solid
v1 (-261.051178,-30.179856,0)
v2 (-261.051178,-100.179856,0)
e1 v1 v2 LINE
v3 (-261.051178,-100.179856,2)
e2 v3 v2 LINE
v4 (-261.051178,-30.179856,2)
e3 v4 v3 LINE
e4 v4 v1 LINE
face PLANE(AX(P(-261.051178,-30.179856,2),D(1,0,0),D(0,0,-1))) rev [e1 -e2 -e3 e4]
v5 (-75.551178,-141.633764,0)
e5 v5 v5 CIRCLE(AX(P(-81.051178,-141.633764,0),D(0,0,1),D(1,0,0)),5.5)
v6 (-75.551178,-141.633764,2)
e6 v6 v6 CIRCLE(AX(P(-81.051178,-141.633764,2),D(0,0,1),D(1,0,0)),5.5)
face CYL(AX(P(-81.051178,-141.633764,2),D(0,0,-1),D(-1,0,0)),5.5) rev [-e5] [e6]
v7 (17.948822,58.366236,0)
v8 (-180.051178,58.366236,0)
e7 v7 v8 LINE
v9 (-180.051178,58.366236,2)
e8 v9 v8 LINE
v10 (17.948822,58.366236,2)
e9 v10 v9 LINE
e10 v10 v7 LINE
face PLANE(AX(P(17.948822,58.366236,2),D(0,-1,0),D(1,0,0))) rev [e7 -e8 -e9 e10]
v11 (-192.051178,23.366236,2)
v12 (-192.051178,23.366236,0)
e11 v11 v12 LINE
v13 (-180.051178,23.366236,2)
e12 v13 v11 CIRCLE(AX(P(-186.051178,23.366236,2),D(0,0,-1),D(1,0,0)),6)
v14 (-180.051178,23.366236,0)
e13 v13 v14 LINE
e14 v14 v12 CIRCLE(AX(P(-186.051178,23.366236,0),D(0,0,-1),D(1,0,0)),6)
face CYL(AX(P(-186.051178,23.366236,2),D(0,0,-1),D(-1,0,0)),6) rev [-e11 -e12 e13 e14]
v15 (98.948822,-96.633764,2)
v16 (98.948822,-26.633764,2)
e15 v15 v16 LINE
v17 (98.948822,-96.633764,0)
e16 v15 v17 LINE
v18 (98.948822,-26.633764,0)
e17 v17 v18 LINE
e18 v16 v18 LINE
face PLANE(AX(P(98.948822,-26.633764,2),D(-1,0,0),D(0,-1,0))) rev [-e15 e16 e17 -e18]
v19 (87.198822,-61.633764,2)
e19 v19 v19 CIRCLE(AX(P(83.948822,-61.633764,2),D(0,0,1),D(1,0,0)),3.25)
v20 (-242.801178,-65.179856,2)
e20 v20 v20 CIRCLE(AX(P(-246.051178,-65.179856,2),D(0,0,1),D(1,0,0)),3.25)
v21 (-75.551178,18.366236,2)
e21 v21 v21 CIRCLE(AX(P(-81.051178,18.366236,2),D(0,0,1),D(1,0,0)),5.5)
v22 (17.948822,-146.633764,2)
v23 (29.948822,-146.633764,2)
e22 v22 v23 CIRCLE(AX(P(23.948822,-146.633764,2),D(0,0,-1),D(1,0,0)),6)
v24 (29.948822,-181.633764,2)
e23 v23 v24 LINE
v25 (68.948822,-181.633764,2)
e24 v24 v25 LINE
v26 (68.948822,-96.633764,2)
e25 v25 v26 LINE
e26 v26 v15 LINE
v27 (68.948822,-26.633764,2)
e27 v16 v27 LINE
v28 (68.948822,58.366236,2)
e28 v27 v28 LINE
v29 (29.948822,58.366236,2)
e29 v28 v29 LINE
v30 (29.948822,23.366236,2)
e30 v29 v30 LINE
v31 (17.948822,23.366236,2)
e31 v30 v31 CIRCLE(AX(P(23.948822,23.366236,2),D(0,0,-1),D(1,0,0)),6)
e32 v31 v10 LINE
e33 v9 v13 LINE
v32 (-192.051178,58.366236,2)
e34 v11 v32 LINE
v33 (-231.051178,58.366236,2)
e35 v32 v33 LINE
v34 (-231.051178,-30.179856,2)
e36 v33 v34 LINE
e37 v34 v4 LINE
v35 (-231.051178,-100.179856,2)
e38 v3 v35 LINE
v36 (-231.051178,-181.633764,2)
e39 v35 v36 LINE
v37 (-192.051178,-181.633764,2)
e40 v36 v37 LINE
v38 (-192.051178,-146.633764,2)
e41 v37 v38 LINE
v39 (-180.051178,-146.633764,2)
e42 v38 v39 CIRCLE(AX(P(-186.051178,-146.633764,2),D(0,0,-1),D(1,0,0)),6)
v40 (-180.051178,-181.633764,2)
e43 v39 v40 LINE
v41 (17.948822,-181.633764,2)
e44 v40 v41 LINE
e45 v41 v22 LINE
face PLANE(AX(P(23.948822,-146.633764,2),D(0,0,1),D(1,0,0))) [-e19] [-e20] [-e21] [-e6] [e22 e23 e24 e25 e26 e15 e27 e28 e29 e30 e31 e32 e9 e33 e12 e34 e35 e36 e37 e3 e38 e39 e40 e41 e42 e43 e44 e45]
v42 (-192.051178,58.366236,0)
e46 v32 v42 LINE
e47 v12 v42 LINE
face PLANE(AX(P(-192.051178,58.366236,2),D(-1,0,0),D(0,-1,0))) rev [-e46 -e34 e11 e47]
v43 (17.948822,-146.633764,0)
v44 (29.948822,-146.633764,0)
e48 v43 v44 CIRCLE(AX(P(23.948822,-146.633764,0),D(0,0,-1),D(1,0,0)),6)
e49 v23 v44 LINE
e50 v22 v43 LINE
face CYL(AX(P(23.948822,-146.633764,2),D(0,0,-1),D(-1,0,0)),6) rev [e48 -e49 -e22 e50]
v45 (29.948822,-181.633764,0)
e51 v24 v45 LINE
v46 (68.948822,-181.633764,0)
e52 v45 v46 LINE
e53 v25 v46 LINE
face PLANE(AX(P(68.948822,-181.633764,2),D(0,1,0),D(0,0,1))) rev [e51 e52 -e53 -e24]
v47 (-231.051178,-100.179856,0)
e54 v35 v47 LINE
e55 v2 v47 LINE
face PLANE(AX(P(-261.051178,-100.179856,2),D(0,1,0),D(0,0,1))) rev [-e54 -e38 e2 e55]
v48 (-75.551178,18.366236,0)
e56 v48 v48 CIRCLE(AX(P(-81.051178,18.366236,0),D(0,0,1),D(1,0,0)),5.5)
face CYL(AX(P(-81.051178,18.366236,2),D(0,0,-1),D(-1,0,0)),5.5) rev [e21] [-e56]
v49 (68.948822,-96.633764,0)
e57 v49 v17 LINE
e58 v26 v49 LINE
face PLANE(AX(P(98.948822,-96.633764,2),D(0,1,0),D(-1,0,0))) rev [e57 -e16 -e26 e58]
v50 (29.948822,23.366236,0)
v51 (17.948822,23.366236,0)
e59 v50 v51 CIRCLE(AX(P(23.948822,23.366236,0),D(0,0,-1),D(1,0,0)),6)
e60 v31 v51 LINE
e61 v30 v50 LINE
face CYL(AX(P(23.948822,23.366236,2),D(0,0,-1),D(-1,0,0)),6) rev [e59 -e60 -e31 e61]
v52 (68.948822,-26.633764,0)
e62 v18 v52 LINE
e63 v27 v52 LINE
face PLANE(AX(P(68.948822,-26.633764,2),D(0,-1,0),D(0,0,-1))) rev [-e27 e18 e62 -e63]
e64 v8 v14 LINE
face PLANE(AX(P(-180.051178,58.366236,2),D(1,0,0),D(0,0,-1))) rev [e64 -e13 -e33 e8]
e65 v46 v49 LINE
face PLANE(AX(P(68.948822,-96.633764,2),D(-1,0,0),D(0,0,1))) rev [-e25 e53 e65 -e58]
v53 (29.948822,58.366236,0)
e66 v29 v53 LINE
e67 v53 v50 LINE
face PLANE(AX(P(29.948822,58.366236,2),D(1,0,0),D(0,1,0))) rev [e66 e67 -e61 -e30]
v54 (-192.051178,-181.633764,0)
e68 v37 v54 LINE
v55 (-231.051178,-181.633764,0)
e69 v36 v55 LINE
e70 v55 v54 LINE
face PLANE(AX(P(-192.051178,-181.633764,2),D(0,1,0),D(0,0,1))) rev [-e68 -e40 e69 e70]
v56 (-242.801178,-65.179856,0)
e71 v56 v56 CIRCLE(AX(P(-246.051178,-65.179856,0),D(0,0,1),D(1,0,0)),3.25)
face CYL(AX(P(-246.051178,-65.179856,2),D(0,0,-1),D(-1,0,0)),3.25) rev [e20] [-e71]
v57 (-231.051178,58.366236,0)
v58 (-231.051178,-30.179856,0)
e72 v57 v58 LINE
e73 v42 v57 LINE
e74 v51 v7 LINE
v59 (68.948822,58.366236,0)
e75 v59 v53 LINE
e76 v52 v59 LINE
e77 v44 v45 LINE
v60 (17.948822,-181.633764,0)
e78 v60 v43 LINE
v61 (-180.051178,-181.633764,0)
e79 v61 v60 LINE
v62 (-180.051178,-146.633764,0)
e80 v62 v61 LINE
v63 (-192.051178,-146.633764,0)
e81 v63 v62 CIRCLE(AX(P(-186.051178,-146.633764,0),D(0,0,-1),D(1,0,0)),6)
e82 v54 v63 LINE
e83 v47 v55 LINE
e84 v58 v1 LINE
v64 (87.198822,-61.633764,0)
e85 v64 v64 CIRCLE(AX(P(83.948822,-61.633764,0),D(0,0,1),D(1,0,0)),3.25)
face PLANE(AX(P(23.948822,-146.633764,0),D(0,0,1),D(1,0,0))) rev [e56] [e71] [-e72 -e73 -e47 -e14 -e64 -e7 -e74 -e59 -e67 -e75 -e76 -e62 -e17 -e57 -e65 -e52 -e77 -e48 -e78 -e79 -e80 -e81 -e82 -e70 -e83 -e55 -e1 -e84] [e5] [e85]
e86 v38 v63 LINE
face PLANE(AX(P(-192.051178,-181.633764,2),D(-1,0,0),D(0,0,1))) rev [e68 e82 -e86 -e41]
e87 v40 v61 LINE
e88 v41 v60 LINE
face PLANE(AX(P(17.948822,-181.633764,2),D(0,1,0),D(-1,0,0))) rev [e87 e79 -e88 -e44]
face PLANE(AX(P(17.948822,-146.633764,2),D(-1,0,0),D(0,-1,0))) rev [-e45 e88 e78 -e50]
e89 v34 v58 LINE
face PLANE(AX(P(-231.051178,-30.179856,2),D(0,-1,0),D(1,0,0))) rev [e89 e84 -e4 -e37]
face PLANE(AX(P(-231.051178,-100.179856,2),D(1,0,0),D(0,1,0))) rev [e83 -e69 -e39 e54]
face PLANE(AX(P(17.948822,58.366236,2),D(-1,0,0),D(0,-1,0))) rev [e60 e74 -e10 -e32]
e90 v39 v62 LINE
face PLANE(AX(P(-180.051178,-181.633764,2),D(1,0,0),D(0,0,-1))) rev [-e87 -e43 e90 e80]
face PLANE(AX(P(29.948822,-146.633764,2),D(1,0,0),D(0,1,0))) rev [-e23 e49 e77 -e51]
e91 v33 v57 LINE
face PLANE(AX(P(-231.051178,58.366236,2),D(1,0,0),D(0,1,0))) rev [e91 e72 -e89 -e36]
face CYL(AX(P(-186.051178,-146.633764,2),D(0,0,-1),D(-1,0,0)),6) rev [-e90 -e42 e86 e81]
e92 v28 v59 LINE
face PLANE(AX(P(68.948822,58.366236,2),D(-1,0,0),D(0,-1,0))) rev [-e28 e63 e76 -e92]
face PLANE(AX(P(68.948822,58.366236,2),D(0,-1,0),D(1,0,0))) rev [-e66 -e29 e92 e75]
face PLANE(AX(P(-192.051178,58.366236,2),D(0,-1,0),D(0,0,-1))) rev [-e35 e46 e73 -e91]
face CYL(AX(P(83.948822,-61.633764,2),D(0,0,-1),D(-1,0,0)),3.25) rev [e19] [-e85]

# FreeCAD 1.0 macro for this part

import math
import FreeCAD as App
import Part
import Sketcher
Q = App.Units.Quantity

doc = App.newDocument("Part")
params = doc.addObject("Spreadsheet::Sheet", "Params")
for row, (alias, value) in enumerate([
    ("sketch1_diameter", "11 mm"),
    ("sketch1_radius", "6 mm"),
    ("sketch1_diameter2", "6.5 mm"),
    ("sketch1_width", "30 mm"),
    ("sketch1_width2", "39 mm"),
    ("pad1_length", "2 mm"),
], start=1):
    params.set(f"A{row}", alias)
    params.set(f"B{row}", "=" + value)
    params.setAlias(f"B{row}", alias)

body = doc.addObject("PartDesign::Body", "Body")

sketch1 = doc.addObject("Sketcher::SketchObject", "Sketch")
body.addObject(sketch1)
sketch1.AttachmentSupport = (doc.XY_Plane, [""])
sketch1.MapMode = "FlatFace"
sketch1.addGeometry([
    Part.LineSegment(App.Vector(98.9, -26.6, 0), App.Vector(68.9, -26.6, 0)),
    Part.LineSegment(App.Vector(68.9, -26.6, 0), App.Vector(68.9, 58.4, 0)),
    Part.LineSegment(App.Vector(68.9, 58.4, 0), App.Vector(29.9, 58.4, 0)),
    Part.LineSegment(App.Vector(29.9, 58.4, 0), App.Vector(29.9, 23.4, 0)),
    Part.ArcOfCircle(Part.Circle(App.Vector(23.9, 23.4, 0), App.Vector(0, 0, 1), 6), math.radians(180), math.radians(360)),
    Part.LineSegment(App.Vector(17.9, 23.4, 0), App.Vector(17.9, 58.4, 0)),
    Part.LineSegment(App.Vector(17.9, 58.4, 0), App.Vector(-180.1, 58.4, 0)),
    Part.LineSegment(App.Vector(-180.1, 58.4, 0), App.Vector(-180.1, 23.4, 0)),
    Part.ArcOfCircle(Part.Circle(App.Vector(-186.1, 23.4, 0), App.Vector(0, 0, 1), 6), math.radians(180), math.radians(360)),
    Part.LineSegment(App.Vector(-192.1, 23.4, 0), App.Vector(-192.1, 58.4, 0)),
    Part.LineSegment(App.Vector(-192.1, 58.4, 0), App.Vector(-231.1, 58.4, 0)),
    Part.LineSegment(App.Vector(-231.1, 58.4, 0), App.Vector(-231.1, -30.2, 0)),
    Part.LineSegment(App.Vector(-231.1, -30.2, 0), App.Vector(-261.1, -30.2, 0)),
    Part.LineSegment(App.Vector(-261.1, -30.2, 0), App.Vector(-261.1, -100.2, 0)),
    Part.LineSegment(App.Vector(-261.1, -100.2, 0), App.Vector(-231.1, -100.2, 0)),
    Part.LineSegment(App.Vector(-231.1, -100.2, 0), App.Vector(-231.1, -181.6, 0)),
    Part.LineSegment(App.Vector(-231.1, -181.6, 0), App.Vector(-192.1, -181.6, 0)),
    Part.LineSegment(App.Vector(-192.1, -181.6, 0), App.Vector(-192.1, -146.6, 0)),
    Part.ArcOfCircle(Part.Circle(App.Vector(-186.1, -146.6, 0), App.Vector(0, 0, 1), 6), math.radians(0), math.radians(180)),
    Part.LineSegment(App.Vector(-180.1, -146.6, 0), App.Vector(-180.1, -181.6, 0)),
    Part.LineSegment(App.Vector(-180.1, -181.6, 0), App.Vector(17.9, -181.6, 0)),
    Part.LineSegment(App.Vector(17.9, -181.6, 0), App.Vector(17.9, -146.6, 0)),
    Part.ArcOfCircle(Part.Circle(App.Vector(23.9, -146.6, 0), App.Vector(0, 0, 1), 6), math.radians(0), math.radians(180)),
    Part.LineSegment(App.Vector(29.9, -146.6, 0), App.Vector(29.9, -181.6, 0)),
    Part.LineSegment(App.Vector(29.9, -181.6, 0), App.Vector(68.9, -181.6, 0)),
    Part.LineSegment(App.Vector(68.9, -181.6, 0), App.Vector(68.9, -96.6, 0)),
    Part.LineSegment(App.Vector(68.9, -96.6, 0), App.Vector(98.9, -96.6, 0)),
    Part.LineSegment(App.Vector(98.9, -96.6, 0), App.Vector(98.9, -26.6, 0)),
    Part.Circle(App.Vector(-81.1, -141.6, 0), App.Vector(0, 0, 1), 5.5),
    Part.Circle(App.Vector(-246.1, -65.2, 0), App.Vector(0, 0, 1), 3.2),
    Part.Circle(App.Vector(83.9, -61.6, 0), App.Vector(0, 0, 1), 3.2),
    Part.Circle(App.Vector(-81.1, 18.4, 0), App.Vector(0, 0, 1), 5.5),
], False)
sketch1.addConstraint([
    Sketcher.Constraint("Coincident", 0, 2, 1, 1),
    Sketcher.Constraint("Coincident", 1, 2, 2, 1),
    Sketcher.Constraint("Coincident", 2, 2, 3, 1),
    Sketcher.Constraint("Tangent", 3, 2, 4, 2),
    Sketcher.Constraint("Tangent", 4, 1, 5, 1),
    Sketcher.Constraint("Coincident", 5, 2, 6, 1),
    Sketcher.Constraint("Coincident", 6, 2, 7, 1),
    Sketcher.Constraint("Tangent", 7, 2, 8, 2),
    Sketcher.Constraint("Tangent", 8, 1, 9, 1),
    Sketcher.Constraint("Coincident", 9, 2, 10, 1),
    Sketcher.Constraint("Coincident", 10, 2, 11, 1),
    Sketcher.Constraint("Coincident", 11, 2, 12, 1),
    Sketcher.Constraint("Coincident", 12, 2, 13, 1),
    Sketcher.Constraint("Coincident", 13, 2, 14, 1),
    Sketcher.Constraint("Coincident", 14, 2, 15, 1),
    Sketcher.Constraint("Coincident", 15, 2, 16, 1),
    Sketcher.Constraint("Coincident", 16, 2, 17, 1),
    Sketcher.Constraint("Tangent", 17, 2, 18, 2),
    Sketcher.Constraint("Tangent", 18, 1, 19, 1),
    Sketcher.Constraint("Coincident", 19, 2, 20, 1),
    Sketcher.Constraint("Coincident", 20, 2, 21, 1),
    Sketcher.Constraint("Tangent", 21, 2, 22, 2),
    Sketcher.Constraint("Tangent", 22, 1, 23, 1),
    Sketcher.Constraint("Coincident", 23, 2, 24, 1),
    Sketcher.Constraint("Coincident", 24, 2, 25, 1),
    Sketcher.Constraint("Coincident", 25, 2, 26, 1),
    Sketcher.Constraint("Coincident", 26, 2, 27, 1),
    Sketcher.Constraint("Coincident", 27, 2, 0, 1),
    Sketcher.Constraint("Horizontal", 0),
    Sketcher.Constraint("Vertical", 1),
    Sketcher.Constraint("Horizontal", 2),
    Sketcher.Constraint("Vertical", 3),
    Sketcher.Constraint("Vertical", 5),
    Sketcher.Constraint("Horizontal", 6),
    Sketcher.Constraint("Vertical", 7),
    Sketcher.Constraint("Vertical", 9),
    Sketcher.Constraint("Horizontal", 10),
    Sketcher.Constraint("Vertical", 11),
    Sketcher.Constraint("Horizontal", 12),
    Sketcher.Constraint("Vertical", 13),
    Sketcher.Constraint("Horizontal", 14),
    Sketcher.Constraint("Vertical", 15),
    Sketcher.Constraint("Horizontal", 16),
    Sketcher.Constraint("Vertical", 17),
    Sketcher.Constraint("Vertical", 19),
    Sketcher.Constraint("Horizontal", 20),
    Sketcher.Constraint("Vertical", 21),
    Sketcher.Constraint("Vertical", 23),
    Sketcher.Constraint("Horizontal", 24),
    Sketcher.Constraint("Vertical", 25),
    Sketcher.Constraint("Horizontal", 26),
    Sketcher.Constraint("Vertical", 27),
    Sketcher.Constraint("Equal", 4, 8),
    Sketcher.Constraint("Equal", 8, 18),
    Sketcher.Constraint("Equal", 18, 22),
    Sketcher.Constraint("Equal", 29, 30),
    Sketcher.Constraint("Equal", 28, 31),
    Sketcher.Constraint("Horizontal", 4, 3, 8, 3),
    Sketcher.Constraint("Horizontal", 18, 3, 22, 3),
    Sketcher.Constraint("Horizontal", 2, 2, 5, 2),
    Sketcher.Constraint("Horizontal", 6, 2, 9, 2),
    Sketcher.Constraint("Horizontal", 16, 2, 19, 2),
    Sketcher.Constraint("Horizontal", 20, 2, 23, 2),
    Sketcher.Constraint("Vertical", 8, 3, 18, 3),
    Sketcher.Constraint("Vertical", 4, 3, 22, 3),
    Sketcher.Constraint("Vertical", 28, 3, 31, 3),
    Sketcher.Constraint("Vertical", 11, 2, 14, 2),
    Sketcher.Constraint("Vertical", 1, 2, 24, 2),
    Sketcher.Constraint("Equal", 2, 10),
    Sketcher.Constraint("Equal", 0, 12),
    Sketcher.Constraint("Equal", 9, 17),
    Sketcher.Constraint("Equal", 1, 25),
    Sketcher.Constraint("Equal", 13, 27),
    Sketcher.Constraint("Diameter", 28, Q("11 mm")),
    Sketcher.Constraint("Radius", 4, Q("6 mm")),
    Sketcher.Constraint("Diameter", 29, Q("6.5 mm")),
    Sketcher.Constraint("DistanceX", 0, 2, 0, 1, Q("30 mm")),
    Sketcher.Constraint("DistanceX", 2, 2, 2, 1, Q("39 mm")),
    Sketcher.Constraint("DistanceX", 6, 2, 6, 1, Q("198 mm")),
    Sketcher.Constraint("DistanceY", 1, 1, 1, 2, Q("85 mm")),
    Sketcher.Constraint("DistanceY", 3, 2, 3, 1, Q("35 mm")),
    Sketcher.Constraint("DistanceY", 13, 2, 13, 1, Q("70 mm")),
    Sketcher.Constraint("DistanceX", 18, 3, 28, 3, Q("105 mm")),
    Sketcher.Constraint("DistanceY", 18, 3, 28, 3, Q("5 mm")),
    Sketcher.Constraint("DistanceX", 29, 3, 18, 3, Q("60 mm")),
    Sketcher.Constraint("DistanceX", 4, 3, 30, 3, Q("60 mm")),
    Sketcher.Constraint("DistanceY", 30, 3, 4, 3, Q("85 mm")),
    Sketcher.Constraint("DistanceY", 31, 3, 4, 3, Q("5 mm")),
    Sketcher.Constraint("DistanceY", 29, 3, 11, 2, Q("35 mm")),
    Sketcher.Constraint("DistanceY", 11, 2, 11, 1, Q("88.546092 mm")),
    Sketcher.Constraint("DistanceX", -1, 1, 4, 3, Q("23.948822 mm")),
    Sketcher.Constraint("DistanceY", -1, 1, 4, 3, Q("23.366236 mm")),
])
sketch1.setExpression("Constraints[73]", "Params.sketch1_diameter")
sketch1.setExpression("Constraints[74]", "Params.sketch1_radius")
sketch1.setExpression("Constraints[75]", "Params.sketch1_diameter2")
sketch1.setExpression("Constraints[76]", "Params.sketch1_width")
sketch1.setExpression("Constraints[77]", "Params.sketch1_width2")
pad1 = doc.addObject("PartDesign::Pad", "Pad")
body.addObject(pad1)
pad1.Profile = sketch1
pad1.setExpression("Length", "Params.pad1_length")

doc.recompute()
